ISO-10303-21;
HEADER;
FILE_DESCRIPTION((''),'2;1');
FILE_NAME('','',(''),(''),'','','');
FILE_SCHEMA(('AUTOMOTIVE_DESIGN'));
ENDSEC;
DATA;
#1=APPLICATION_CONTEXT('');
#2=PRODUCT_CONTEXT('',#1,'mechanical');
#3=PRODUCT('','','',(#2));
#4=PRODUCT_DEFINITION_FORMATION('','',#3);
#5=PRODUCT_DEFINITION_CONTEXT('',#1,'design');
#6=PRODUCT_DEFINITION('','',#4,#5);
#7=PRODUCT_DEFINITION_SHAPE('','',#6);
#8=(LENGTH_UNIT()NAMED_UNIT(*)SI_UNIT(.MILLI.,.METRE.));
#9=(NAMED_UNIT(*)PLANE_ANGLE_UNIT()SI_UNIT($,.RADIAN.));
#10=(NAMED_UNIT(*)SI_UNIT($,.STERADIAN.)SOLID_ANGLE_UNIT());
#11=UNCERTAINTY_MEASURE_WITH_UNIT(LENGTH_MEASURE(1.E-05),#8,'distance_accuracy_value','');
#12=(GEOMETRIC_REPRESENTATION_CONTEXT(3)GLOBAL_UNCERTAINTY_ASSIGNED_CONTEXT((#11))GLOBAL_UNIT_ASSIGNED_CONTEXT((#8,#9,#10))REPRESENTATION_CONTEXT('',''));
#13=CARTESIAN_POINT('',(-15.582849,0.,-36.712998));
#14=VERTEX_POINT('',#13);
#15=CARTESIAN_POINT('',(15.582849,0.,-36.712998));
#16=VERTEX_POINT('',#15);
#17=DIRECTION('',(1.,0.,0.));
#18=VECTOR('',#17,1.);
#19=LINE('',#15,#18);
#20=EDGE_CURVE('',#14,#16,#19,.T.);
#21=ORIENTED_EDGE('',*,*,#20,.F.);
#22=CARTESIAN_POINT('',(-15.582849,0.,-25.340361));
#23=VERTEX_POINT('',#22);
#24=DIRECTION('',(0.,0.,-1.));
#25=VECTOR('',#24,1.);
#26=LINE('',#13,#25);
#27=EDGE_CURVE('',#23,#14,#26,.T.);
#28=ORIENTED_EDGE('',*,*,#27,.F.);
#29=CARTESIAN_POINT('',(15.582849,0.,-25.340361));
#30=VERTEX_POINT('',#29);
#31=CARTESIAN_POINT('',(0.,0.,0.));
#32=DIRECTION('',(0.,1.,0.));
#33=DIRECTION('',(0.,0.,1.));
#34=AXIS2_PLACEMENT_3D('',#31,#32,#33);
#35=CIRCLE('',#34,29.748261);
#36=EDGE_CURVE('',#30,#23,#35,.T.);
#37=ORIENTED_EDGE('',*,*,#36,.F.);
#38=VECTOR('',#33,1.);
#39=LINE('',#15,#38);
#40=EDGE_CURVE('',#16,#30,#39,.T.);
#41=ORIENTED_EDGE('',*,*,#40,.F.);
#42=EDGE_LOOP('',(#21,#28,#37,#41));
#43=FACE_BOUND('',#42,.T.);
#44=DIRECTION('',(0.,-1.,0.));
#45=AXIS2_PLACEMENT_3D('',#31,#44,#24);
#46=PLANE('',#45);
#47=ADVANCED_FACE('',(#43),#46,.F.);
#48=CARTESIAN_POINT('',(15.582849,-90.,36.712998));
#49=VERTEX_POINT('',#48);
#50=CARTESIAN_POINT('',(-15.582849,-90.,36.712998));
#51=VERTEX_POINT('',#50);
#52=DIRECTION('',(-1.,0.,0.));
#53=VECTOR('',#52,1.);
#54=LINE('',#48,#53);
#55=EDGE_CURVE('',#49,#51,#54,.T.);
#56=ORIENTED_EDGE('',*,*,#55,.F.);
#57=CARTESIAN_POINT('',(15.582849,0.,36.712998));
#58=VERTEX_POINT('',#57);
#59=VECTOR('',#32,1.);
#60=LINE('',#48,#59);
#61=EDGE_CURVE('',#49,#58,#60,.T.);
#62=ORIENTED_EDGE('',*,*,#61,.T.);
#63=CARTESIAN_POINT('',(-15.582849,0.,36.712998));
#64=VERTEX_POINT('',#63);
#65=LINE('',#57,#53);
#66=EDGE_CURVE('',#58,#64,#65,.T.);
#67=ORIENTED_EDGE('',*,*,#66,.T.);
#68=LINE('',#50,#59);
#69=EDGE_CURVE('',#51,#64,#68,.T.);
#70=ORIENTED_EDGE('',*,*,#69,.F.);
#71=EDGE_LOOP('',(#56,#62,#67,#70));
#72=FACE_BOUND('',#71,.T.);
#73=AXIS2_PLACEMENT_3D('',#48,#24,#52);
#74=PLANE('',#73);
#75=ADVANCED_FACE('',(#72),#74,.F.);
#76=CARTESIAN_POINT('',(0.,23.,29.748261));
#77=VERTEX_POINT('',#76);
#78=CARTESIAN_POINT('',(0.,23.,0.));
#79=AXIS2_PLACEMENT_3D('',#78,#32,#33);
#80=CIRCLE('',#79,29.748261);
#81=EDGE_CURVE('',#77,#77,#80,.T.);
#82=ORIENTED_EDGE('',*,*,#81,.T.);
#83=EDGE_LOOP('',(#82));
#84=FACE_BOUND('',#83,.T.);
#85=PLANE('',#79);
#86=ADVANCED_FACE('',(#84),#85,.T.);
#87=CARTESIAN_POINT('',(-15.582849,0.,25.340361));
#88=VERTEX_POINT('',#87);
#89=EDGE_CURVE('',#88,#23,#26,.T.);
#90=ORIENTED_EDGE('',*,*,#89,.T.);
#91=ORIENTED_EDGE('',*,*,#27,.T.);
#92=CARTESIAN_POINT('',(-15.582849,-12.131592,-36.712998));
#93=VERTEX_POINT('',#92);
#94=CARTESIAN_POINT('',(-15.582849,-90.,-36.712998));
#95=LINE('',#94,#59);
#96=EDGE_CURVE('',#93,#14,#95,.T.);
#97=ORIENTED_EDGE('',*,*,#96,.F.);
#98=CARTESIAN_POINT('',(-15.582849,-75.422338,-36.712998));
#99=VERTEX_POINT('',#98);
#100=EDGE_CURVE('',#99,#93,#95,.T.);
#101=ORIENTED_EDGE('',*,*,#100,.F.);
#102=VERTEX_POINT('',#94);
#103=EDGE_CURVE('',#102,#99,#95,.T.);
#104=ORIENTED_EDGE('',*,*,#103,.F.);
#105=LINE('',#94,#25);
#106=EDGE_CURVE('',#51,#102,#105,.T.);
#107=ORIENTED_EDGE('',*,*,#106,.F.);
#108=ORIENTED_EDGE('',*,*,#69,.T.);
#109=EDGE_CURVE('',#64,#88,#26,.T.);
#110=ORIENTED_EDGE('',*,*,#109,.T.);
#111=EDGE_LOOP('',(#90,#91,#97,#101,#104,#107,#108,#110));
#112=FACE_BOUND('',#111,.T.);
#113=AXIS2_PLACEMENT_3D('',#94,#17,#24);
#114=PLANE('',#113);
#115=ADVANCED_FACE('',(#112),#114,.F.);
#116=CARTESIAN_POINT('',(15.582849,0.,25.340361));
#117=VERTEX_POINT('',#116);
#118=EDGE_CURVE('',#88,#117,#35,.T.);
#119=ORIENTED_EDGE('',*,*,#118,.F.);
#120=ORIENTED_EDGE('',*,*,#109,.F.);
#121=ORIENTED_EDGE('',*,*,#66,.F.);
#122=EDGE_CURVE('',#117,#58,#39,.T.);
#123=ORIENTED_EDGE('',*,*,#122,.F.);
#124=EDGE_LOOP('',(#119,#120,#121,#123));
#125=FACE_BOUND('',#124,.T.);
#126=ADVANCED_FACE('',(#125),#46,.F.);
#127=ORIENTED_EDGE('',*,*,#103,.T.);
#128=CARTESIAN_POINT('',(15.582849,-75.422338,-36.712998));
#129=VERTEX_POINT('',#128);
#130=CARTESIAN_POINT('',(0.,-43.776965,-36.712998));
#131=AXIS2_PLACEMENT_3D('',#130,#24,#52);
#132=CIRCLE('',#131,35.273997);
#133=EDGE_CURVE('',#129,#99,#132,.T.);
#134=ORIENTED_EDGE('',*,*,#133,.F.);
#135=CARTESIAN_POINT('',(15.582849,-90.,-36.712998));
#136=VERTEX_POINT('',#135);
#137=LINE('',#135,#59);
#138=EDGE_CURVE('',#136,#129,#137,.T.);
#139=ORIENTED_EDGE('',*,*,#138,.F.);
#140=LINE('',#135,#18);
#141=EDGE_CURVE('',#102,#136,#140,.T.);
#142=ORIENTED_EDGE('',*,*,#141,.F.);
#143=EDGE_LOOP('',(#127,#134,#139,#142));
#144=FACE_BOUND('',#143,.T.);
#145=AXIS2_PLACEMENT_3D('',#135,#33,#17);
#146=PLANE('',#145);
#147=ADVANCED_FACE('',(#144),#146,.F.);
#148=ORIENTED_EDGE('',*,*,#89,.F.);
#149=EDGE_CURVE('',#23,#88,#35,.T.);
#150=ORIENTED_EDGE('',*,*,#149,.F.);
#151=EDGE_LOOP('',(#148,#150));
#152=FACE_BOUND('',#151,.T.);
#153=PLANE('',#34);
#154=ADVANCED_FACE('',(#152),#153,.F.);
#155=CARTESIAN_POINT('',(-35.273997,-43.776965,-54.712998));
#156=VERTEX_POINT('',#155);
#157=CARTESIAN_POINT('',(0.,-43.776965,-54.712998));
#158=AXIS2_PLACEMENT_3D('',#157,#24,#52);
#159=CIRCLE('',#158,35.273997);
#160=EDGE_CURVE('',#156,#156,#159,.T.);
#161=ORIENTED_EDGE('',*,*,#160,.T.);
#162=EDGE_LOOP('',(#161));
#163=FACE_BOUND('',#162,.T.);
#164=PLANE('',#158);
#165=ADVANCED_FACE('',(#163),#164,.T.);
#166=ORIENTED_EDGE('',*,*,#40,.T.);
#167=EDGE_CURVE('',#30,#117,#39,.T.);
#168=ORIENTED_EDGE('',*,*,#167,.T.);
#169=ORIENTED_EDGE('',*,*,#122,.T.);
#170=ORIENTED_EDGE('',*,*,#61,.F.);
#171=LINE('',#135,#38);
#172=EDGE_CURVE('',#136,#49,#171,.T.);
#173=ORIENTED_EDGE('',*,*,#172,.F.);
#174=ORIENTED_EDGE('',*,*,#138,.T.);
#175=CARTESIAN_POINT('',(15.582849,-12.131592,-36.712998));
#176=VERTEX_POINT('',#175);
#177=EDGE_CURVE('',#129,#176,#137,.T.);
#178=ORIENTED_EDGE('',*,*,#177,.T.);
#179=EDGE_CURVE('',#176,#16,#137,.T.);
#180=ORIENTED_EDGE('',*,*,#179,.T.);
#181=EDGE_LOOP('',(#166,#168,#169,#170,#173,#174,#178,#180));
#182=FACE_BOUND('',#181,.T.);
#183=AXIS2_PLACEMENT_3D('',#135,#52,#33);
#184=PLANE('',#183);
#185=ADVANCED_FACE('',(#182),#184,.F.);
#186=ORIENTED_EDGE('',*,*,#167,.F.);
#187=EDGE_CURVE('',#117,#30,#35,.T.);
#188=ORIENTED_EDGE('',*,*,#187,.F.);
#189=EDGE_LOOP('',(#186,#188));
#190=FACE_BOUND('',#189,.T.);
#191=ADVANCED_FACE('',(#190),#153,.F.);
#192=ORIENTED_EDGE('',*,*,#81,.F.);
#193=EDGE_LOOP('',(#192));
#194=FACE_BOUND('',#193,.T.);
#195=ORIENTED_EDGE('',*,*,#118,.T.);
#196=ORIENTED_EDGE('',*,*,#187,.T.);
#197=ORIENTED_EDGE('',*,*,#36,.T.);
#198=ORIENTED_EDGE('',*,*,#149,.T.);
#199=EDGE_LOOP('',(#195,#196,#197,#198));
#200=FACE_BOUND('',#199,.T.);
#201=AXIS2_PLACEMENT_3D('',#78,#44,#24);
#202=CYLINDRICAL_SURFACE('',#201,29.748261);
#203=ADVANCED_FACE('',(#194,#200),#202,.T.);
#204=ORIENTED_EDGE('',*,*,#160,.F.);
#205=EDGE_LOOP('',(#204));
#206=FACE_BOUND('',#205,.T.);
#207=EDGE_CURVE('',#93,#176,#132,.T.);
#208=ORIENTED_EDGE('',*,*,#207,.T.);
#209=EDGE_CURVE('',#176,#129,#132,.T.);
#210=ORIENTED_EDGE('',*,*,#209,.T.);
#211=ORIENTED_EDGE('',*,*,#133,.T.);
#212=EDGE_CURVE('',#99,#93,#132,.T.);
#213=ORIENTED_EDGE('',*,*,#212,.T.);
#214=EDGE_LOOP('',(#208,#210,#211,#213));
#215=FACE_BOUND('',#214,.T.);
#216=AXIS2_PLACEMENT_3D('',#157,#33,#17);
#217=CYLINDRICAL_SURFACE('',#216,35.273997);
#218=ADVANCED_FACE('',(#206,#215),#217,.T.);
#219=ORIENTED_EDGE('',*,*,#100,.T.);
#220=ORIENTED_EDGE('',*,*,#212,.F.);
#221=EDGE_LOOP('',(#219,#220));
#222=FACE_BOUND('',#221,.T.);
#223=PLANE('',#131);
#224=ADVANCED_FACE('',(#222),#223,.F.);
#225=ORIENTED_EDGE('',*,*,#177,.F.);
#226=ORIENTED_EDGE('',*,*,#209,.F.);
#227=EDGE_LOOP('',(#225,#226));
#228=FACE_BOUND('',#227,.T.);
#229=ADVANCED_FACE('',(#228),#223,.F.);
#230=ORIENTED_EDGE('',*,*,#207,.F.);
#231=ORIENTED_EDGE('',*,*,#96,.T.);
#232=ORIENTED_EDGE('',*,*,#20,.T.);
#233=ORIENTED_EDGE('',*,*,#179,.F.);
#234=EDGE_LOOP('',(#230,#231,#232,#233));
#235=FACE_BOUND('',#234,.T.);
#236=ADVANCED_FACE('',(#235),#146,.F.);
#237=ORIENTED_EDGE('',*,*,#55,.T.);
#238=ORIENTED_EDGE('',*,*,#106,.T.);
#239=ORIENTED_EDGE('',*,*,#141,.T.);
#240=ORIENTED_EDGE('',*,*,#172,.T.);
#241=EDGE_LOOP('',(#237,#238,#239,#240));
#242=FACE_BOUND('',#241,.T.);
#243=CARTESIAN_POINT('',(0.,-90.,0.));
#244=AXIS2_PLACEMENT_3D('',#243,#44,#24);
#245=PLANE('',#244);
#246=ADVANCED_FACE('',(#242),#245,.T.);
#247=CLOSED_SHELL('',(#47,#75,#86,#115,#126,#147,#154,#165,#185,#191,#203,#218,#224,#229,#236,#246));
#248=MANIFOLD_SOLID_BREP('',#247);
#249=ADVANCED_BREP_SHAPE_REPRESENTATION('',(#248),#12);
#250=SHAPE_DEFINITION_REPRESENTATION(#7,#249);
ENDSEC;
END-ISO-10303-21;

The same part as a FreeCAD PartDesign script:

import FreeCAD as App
import Part
import Sketcher
Q = App.Units.Quantity


def add_polygon(sketch, points):
    """Adds a closed chain of lines whose ends are joined by coincident constraints."""
    first, n = sketch.GeometryCount, len(points)
    for a, b in zip(points, points[1:] + points[:1]):
        sketch.addGeometry(Part.LineSegment(App.Vector(*a, 0), App.Vector(*b, 0)), False)
    for i in range(n):
        sketch.addConstraint(Sketcher.Constraint("Coincident", first + i, 2, first + (i + 1) % n, 1))

doc = App.newDocument("Part")
body = doc.addObject("PartDesign::Body", "Body")

# Sketch on XZ plane
sketch1 = body.newObject("Sketcher::SketchObject", "Sketch")
sketch1.AttachmentSupport = (doc.getObject("XZ_Plane"), [""])
sketch1.MapMode = "FlatFace"
sketch1.addGeometry(Part.Circle(App.Vector(0, 0, 0), App.Vector(0, 0, 1), 30), False)
sketch1.addConstraint([
    Sketcher.Constraint("Coincident", 0, 3, -1, 1),
    Sketcher.Constraint("Diameter", 0, Q("59.496523 mm")),
])
pad1 = body.newObject("PartDesign::Pad", "Pad")
pad1.Profile = sketch1
pad1.Length = 23
pad1.Reversed = True

# Sketch on XZ plane
sketch2 = body.newObject("Sketcher::SketchObject", "Sketch001")
sketch2.AttachmentSupport = (doc.getObject("XZ_Plane"), [""])
sketch2.MapMode = "FlatFace"
add_polygon(sketch2, [(-16, 37), (-16, -37), (16, -37), (16, 37)])  # lines 0-3
sketch2.addConstraint([
    Sketcher.Constraint("Vertical", 0),
    Sketcher.Constraint("Horizontal", 1),
    Sketcher.Constraint("Vertical", 2),
    Sketcher.Constraint("Horizontal", 3),
    Sketcher.Constraint("Symmetric", 0, 2, 2, 2, -1, 1),
    Sketcher.Constraint("DistanceX", 1, 1, 1, 2, Q("31.165698 mm")),
    Sketcher.Constraint("DistanceY", 0, 2, 0, 1, Q("73.425995 mm")),
])
pad2 = body.newObject("PartDesign::Pad", "Pad001")
pad2.Profile = sketch2
pad2.Length = 90

# Sketch on XY plane
sketch3 = body.newObject("Sketcher::SketchObject", "Sketch002")
sketch3.AttachmentSupport = (doc.getObject("XY_Plane"), [""])
sketch3.MapMode = "FlatFace"
sketch3.AttachmentOffset = App.Placement(App.Vector(0, 0, -36.712998), App.Rotation())
sketch3.addGeometry(Part.Circle(App.Vector(0, -44, 0), App.Vector(0, 0, 1), 35), False)
sketch3.addConstraint([
    Sketcher.Constraint("PointOnObject", 0, 3, -2),
    Sketcher.Constraint("Diameter", 0, Q("70.547993 mm")),
    Sketcher.Constraint("DistanceY", 0, 3, -1, 1, Q("43.776965 mm")),
])
pad3 = body.newObject("PartDesign::Pad", "Pad002")
pad3.Profile = sketch3
pad3.Length = 18
pad3.Reversed = True

doc.recompute()
